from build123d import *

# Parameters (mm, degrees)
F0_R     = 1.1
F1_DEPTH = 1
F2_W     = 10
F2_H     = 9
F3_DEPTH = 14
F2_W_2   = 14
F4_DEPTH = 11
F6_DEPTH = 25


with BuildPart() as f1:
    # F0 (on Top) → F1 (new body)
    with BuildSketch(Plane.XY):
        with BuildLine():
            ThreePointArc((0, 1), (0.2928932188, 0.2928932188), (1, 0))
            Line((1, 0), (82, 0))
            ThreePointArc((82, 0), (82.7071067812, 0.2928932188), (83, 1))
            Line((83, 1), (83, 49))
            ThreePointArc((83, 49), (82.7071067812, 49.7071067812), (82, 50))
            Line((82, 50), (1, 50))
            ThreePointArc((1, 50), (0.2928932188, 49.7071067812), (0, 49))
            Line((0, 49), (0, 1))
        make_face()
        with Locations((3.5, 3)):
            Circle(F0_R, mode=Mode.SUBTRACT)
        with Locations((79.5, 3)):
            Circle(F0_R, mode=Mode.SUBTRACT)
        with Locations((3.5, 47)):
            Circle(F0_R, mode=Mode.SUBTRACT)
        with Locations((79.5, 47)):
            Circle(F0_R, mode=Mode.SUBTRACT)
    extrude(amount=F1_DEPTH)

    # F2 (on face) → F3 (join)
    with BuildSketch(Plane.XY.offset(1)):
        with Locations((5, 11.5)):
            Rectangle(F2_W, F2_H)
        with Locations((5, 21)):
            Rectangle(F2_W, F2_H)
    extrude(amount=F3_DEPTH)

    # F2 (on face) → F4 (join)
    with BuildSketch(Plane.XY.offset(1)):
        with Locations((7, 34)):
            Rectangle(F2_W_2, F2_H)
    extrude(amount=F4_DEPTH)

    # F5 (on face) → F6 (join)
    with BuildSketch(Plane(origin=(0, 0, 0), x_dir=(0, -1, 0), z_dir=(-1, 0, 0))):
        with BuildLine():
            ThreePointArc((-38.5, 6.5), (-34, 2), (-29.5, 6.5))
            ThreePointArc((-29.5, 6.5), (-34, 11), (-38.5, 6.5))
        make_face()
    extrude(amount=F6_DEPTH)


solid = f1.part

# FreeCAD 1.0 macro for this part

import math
import FreeCAD as App
import Part
import Sketcher


def add_polygon(sketch, points):
    """Adds a closed chain of lines whose ends are joined by coincident constraints."""
    first, n = sketch.GeometryCount, len(points)
    for a, b in zip(points, points[1:] + points[:1]):
        sketch.addGeometry(Part.LineSegment(App.Vector(*a, 0), App.Vector(*b, 0)), False)
    for i in range(n):
        sketch.addConstraint(Sketcher.Constraint("Coincident", first + i, 2, first + (i + 1) % n, 1))

doc = App.newDocument("Part")
params = doc.addObject("Spreadsheet::Sheet", "Params")
for row, (alias, value) in enumerate([
    ("sketch1_radius", "1 mm"),
    ("sketch1_diameter", "2.2 mm"),
    ("sketch1_width", "81 mm"),
    ("sketch1_height", "48 mm"),
    ("pad1_length", "1 mm"),
    ("sketch2_width", "10 mm"),
    ("sketch2_height", "9 mm"),
    ("pad2_length", "14 mm"),
    ("sketch3_width", "14 mm"),
    ("sketch3_height", "9 mm"),
    ("pad3_length", "11 mm"),
    ("sketch4_diameter", "9 mm"),
    ("pad4_length", "25 mm"),
], start=1):
    params.set(f"A{row}", alias)
    params.set(f"B{row}", "=" + value)
    params.setAlias(f"B{row}", alias)

body = doc.addObject("PartDesign::Body", "Body")

# Sketch on XY plane
sketch1 = body.newObject("Sketcher::SketchObject", "Sketch")
sketch1.AttachmentSupport = (doc.getObject("XY_Plane"), [""])
sketch1.MapMode = "FlatFace"
sketch1.addGeometry([
    Part.ArcOfCircle(Part.Circle(App.Vector(1, 1, 0), App.Vector(0, 0, 1), 1), math.radians(180), math.radians(270)),  # 0
    Part.LineSegment(App.Vector(1, 0, 0), App.Vector(82, 0, 0)),  # 1
    Part.ArcOfCircle(Part.Circle(App.Vector(82, 1, 0), App.Vector(0, 0, 1), 1), math.radians(-90), math.radians(0)),  # 2
    Part.LineSegment(App.Vector(83, 1, 0), App.Vector(83, 49, 0)),  # 3
    Part.ArcOfCircle(Part.Circle(App.Vector(82, 49, 0), App.Vector(0, 0, 1), 1), math.radians(0), math.radians(90)),  # 4
    Part.LineSegment(App.Vector(82, 50, 0), App.Vector(1, 50, 0)),  # 5
    Part.ArcOfCircle(Part.Circle(App.Vector(1, 49, 0), App.Vector(0, 0, 1), 1), math.radians(90), math.radians(180)),  # 6
    Part.LineSegment(App.Vector(0, 49, 0), App.Vector(0, 1, 0)),  # 7
    Part.Circle(App.Vector(3.5, 3, 0), App.Vector(0, 0, 1), 1.1),  # 8
    Part.Circle(App.Vector(79.5, 3, 0), App.Vector(0, 0, 1), 1.1),  # 9
    Part.Circle(App.Vector(3.5, 47, 0), App.Vector(0, 0, 1), 1.1),  # 10
    Part.Circle(App.Vector(79.5, 47, 0), App.Vector(0, 0, 1), 1.1),  # 11
], False)
sketch1.addConstraint([
    Sketcher.Constraint("Tangent", 0, 2, 1, 1),
    Sketcher.Constraint("Tangent", 1, 2, 2, 1),
    Sketcher.Constraint("Tangent", 2, 2, 3, 1),
    Sketcher.Constraint("Tangent", 3, 2, 4, 1),
    Sketcher.Constraint("Tangent", 4, 2, 5, 1),
    Sketcher.Constraint("Tangent", 5, 2, 6, 1),
    Sketcher.Constraint("Tangent", 6, 2, 7, 1),
    Sketcher.Constraint("Tangent", 7, 2, 0, 1),
    Sketcher.Constraint("Horizontal", 1),
    Sketcher.Constraint("Vertical", 3),
    Sketcher.Constraint("Horizontal", 5),
    Sketcher.Constraint("Vertical", 7),
    Sketcher.Constraint("Equal", 0, 2),
    Sketcher.Constraint("Equal", 2, 4),
    Sketcher.Constraint("Equal", 4, 6),
    Sketcher.Constraint("Equal", 8, 9),
    Sketcher.Constraint("Equal", 9, 10),
    Sketcher.Constraint("Equal", 10, 11),
    Sketcher.Constraint("PointOnObject", 0, 2, -1),
    Sketcher.Constraint("PointOnObject", 6, 2, -2),
    Sketcher.Constraint("Horizontal", 8, 3, 9, 3),
    Sketcher.Constraint("Horizontal", 10, 3, 11, 3),
    Sketcher.Constraint("Vertical", 8, 3, 10, 3),
    Sketcher.Constraint("Vertical", 9, 3, 11, 3),
    Sketcher.Constraint("Radius", 0, 1.0),
    Sketcher.Constraint("Diameter", 8, 2.2),
    Sketcher.Constraint("DistanceX", 1, 1, 1, 2, 81.0),
    Sketcher.Constraint("DistanceY", 3, 1, 3, 2, 48.0),
    Sketcher.Constraint("DistanceY", -1, 1, 8, 3, 3.0),
    Sketcher.Constraint("DistanceY", -1, 1, 10, 3, 47.0),
    Sketcher.Constraint("DistanceX", 8, 3, 9, 3, 76.0),
    Sketcher.Constraint("DistanceX", -1, 1, 8, 3, 3.5),
])
sketch1.setExpression("Constraints[24]", "Params.sketch1_radius")
sketch1.setExpression("Constraints[25]", "Params.sketch1_diameter")
sketch1.setExpression("Constraints[26]", "Params.sketch1_width")
sketch1.setExpression("Constraints[27]", "Params.sketch1_height")
pad1 = body.newObject("PartDesign::Pad", "Pad")
pad1.Profile = sketch1
pad1.setExpression("Length", "Params.pad1_length")

# Sketch on XY plane
sketch2 = body.newObject("Sketcher::SketchObject", "Sketch001")
sketch2.AttachmentSupport = (doc.getObject("XY_Plane"), [""])
sketch2.MapMode = "FlatFace"
sketch2.AttachmentOffset = App.Placement(App.Vector(0, 0, 1), App.Rotation())
add_polygon(sketch2, [(0, 16), (0, 7), (10, 7), (10, 16)])  # lines 0-3
add_polygon(sketch2, [(0, 26), (0, 16), (10, 16), (10, 26)])  # lines 4-7
sketch2.addConstraint([
    Sketcher.Constraint("Vertical", 0),
    Sketcher.Constraint("Horizontal", 1),
    Sketcher.Constraint("Vertical", 2),
    Sketcher.Constraint("Horizontal", 3),
    Sketcher.Constraint("Vertical", 4),
    Sketcher.Constraint("Horizontal", 5),
    Sketcher.Constraint("Vertical", 6),
    Sketcher.Constraint("Horizontal", 7),
    Sketcher.Constraint("PointOnObject", 0, 2, -2),
    Sketcher.Constraint("PointOnObject", 4, 2, -2),
    Sketcher.Constraint("Vertical", 2, 2, 5, 2),
    Sketcher.Constraint("Equal", 2, 4),
    Sketcher.Constraint("DistanceX", 1, 1, 1, 2, 10.0),
    Sketcher.Constraint("DistanceY", 0, 2, 0, 1, 9.0),
    Sketcher.Constraint("DistanceY", -1, 1, 0, 2, 7.0),
    Sketcher.Constraint("DistanceY", -1, 1, 4, 2, 16.5),
])
sketch2.setExpression("Constraints[20]", "Params.sketch2_width")
sketch2.setExpression("Constraints[21]", "Params.sketch2_height")
pad2 = body.newObject("PartDesign::Pad", "Pad001")
pad2.Profile = sketch2
pad2.setExpression("Length", "Params.pad2_length")

# Sketch on XY plane
sketch3 = body.newObject("Sketcher::SketchObject", "Sketch002")
sketch3.AttachmentSupport = (doc.getObject("XY_Plane"), [""])
sketch3.MapMode = "FlatFace"
sketch3.AttachmentOffset = App.Placement(App.Vector(0, 0, 1), App.Rotation())
add_polygon(sketch3, [(0, 38), (0, 30), (14, 30), (14, 38)])  # lines 0-3
sketch3.addConstraint([
    Sketcher.Constraint("Vertical", 0),
    Sketcher.Constraint("Horizontal", 1),
    Sketcher.Constraint("Vertical", 2),
    Sketcher.Constraint("Horizontal", 3),
    Sketcher.Constraint("PointOnObject", 0, 2, -2),
    Sketcher.Constraint("DistanceX", 1, 1, 1, 2, 14.0),
    Sketcher.Constraint("DistanceY", 0, 2, 0, 1, 9.0),
    Sketcher.Constraint("DistanceY", -1, 1, 0, 2, 29.5),
])
sketch3.setExpression("Constraints[9]", "Params.sketch3_width")
sketch3.setExpression("Constraints[10]", "Params.sketch3_height")
pad3 = body.newObject("PartDesign::Pad", "Pad002")
pad3.Profile = sketch3
pad3.setExpression("Length", "Params.pad3_length")

# Sketch on YZ plane
sketch4 = body.newObject("Sketcher::SketchObject", "Sketch003")
sketch4.AttachmentSupport = (doc.getObject("YZ_Plane"), [""])
sketch4.MapMode = "FlatFace"
sketch4.addGeometry(Part.Circle(App.Vector(34, 6.5, 0), App.Vector(0, 0, 1), 4.5), False)
sketch4.addConstraint([
    Sketcher.Constraint("Diameter", 0, 9.0),
    Sketcher.Constraint("DistanceX", -1, 1, 0, 3, 34.0),
    Sketcher.Constraint("DistanceY", -1, 1, 0, 3, 6.5),
])
sketch4.setExpression("Constraints[0]", "Params.sketch4_diameter")
pad4 = body.newObject("PartDesign::Pad", "Pad003")
pad4.Profile = sketch4
pad4.setExpression("Length", "Params.pad4_length")
pad4.Reversed = True

doc.recompute()
